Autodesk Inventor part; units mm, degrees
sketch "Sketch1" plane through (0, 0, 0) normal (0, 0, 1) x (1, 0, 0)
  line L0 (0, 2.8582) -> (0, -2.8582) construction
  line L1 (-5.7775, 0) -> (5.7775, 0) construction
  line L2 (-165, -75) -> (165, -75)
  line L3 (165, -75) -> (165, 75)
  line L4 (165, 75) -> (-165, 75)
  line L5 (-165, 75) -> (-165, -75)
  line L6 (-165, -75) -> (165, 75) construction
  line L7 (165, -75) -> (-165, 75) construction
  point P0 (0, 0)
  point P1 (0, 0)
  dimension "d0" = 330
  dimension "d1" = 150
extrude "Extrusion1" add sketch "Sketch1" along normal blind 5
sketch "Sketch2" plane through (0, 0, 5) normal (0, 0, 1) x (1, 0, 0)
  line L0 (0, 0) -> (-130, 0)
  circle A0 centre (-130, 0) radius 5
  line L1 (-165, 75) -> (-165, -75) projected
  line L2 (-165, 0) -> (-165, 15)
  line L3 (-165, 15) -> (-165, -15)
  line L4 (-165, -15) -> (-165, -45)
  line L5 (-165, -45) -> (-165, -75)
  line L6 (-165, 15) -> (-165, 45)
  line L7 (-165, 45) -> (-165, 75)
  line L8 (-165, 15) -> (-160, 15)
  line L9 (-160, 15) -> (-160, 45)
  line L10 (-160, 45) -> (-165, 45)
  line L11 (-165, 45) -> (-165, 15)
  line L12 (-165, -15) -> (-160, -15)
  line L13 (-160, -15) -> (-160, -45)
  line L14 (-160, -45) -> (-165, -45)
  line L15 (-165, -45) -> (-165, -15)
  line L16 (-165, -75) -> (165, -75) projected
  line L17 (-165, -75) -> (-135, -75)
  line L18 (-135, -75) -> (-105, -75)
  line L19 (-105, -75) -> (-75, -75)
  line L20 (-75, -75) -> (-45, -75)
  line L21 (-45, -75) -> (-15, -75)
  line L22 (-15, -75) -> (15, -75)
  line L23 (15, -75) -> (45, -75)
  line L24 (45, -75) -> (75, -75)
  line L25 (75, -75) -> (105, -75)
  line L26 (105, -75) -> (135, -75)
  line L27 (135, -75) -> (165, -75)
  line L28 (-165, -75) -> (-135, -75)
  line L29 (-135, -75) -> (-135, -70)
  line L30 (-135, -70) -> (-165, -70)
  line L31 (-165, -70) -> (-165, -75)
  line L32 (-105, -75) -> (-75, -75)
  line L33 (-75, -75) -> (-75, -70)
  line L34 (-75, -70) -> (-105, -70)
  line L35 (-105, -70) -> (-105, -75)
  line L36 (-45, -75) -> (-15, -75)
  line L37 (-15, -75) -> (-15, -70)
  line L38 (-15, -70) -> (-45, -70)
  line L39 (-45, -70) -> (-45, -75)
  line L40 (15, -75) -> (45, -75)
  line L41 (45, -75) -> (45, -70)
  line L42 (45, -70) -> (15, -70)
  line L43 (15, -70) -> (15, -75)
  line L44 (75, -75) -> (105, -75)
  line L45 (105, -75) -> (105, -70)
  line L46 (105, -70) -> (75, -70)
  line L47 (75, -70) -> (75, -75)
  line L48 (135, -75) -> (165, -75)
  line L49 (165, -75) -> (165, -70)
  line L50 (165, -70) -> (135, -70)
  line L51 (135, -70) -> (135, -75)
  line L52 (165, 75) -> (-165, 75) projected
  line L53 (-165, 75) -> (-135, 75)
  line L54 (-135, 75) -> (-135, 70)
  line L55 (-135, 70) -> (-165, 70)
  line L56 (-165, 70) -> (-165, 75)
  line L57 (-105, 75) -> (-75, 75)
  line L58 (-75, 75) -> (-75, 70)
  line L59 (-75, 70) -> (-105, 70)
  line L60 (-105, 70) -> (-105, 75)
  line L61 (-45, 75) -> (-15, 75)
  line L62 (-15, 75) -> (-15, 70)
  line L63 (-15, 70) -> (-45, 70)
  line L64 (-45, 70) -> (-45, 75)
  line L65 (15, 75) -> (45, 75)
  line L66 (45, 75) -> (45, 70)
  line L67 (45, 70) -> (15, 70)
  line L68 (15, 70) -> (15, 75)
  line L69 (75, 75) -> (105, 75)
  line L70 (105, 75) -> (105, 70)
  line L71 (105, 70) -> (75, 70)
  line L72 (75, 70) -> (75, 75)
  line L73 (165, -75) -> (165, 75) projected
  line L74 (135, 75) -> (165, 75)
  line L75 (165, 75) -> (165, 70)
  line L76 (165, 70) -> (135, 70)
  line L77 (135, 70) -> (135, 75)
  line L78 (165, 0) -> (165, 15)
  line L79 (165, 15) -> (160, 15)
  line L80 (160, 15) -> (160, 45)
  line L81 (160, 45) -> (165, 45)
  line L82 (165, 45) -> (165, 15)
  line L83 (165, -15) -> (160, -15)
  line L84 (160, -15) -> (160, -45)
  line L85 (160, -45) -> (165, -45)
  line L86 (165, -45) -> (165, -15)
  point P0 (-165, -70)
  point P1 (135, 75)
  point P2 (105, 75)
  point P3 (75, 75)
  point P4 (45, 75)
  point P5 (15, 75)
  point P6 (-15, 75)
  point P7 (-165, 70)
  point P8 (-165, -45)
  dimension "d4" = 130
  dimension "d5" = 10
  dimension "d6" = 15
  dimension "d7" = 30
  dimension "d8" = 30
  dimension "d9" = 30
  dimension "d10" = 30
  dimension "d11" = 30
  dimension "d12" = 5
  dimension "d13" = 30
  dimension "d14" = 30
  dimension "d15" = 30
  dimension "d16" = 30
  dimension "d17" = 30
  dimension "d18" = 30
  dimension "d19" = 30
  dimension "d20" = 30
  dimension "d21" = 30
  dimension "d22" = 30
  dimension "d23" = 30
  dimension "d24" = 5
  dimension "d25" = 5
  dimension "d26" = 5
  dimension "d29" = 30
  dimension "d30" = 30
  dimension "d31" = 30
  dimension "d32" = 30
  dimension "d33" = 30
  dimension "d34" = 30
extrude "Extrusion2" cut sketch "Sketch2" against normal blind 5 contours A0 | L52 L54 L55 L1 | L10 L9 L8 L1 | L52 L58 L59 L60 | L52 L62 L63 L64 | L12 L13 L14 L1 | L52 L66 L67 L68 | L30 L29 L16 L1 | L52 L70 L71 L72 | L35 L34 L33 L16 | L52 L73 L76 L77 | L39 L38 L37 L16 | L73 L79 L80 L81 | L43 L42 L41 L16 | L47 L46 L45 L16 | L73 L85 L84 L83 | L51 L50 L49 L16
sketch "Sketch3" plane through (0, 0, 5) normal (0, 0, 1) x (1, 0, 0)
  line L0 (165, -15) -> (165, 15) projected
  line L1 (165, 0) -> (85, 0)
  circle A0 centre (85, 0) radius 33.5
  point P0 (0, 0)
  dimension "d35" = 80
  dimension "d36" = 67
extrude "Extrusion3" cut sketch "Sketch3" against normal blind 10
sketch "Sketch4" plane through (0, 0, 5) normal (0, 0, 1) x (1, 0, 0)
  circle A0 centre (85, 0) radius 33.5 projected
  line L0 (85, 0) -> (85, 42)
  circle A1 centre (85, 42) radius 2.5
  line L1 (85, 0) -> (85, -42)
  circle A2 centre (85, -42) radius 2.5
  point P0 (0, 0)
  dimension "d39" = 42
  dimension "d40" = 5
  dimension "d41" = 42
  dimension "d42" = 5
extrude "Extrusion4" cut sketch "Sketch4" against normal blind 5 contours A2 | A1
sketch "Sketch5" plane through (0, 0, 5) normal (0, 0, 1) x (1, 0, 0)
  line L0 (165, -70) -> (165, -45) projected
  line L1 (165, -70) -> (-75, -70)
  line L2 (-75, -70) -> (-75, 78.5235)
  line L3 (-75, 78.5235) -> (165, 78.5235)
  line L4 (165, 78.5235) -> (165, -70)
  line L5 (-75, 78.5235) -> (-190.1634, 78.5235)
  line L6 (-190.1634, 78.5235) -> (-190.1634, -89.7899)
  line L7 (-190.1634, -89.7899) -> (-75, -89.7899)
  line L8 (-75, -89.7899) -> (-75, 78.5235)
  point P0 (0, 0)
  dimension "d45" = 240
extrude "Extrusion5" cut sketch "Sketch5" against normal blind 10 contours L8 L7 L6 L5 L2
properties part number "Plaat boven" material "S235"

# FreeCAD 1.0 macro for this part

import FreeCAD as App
import Part
import Sketcher

V = App.Vector
Q = App.Units.Quantity

doc = App.newDocument("Part")
body = doc.addObject("PartDesign::Body", "Body")

sketch1 = body.newObject("Sketcher::SketchObject", "Sketch")
sketch1.AttachmentSupport = (doc.getObject("XY_Plane"), [""])
sketch1.MapMode = "FlatFace"
sketch1.addGeometry([
    Part.LineSegment(V(-165, 75, 0), V(-165, -75, 0)),
    Part.LineSegment(V(-165, -75, 0), V(165, -75, 0)),
    Part.LineSegment(V(165, -75, 0), V(165, 75, 0)),
    Part.LineSegment(V(165, 75, 0), V(-165, 75, 0)),
], False)
sketch1.addConstraint([
    Sketcher.Constraint("Coincident", 0, 2, 1, 1),
    Sketcher.Constraint("Coincident", 1, 2, 2, 1),
    Sketcher.Constraint("Coincident", 2, 2, 3, 1),
    Sketcher.Constraint("Coincident", 3, 2, 0, 1),
    Sketcher.Constraint("Vertical", 0),
    Sketcher.Constraint("Horizontal", 1),
    Sketcher.Constraint("Vertical", 2),
    Sketcher.Constraint("Horizontal", 3),
    Sketcher.Constraint("Symmetric", 0, 2, 2, 2, -1, 1),
    Sketcher.Constraint("DistanceX", 1, 1, 1, 2, Q("330 mm")),
    Sketcher.Constraint("DistanceY", 0, 2, 0, 1, Q("150 mm")),
])
pad1 = body.newObject("PartDesign::Pad", "Pad")
pad1.Profile = sketch1
pad1.Length = 5

sketch2 = body.newObject("Sketcher::SketchObject", "Sketch001")
sketch2.AttachmentSupport = (doc.getObject("XY_Plane"), [""])
sketch2.MapMode = "FlatFace"
sketch2.AttachmentOffset = App.Placement(V(0, 0, 5), App.Rotation())
sketch2.addGeometry([
    Part.Circle(V(-130, 0, 0), V(0, 0, 1), 5),
    Part.LineSegment(V(-135, 75, 0), V(-165, 75, 0)),
    Part.LineSegment(V(-165, 75, 0), V(-165, 70, 0)),
    Part.LineSegment(V(-165, 70, 0), V(-135, 70, 0)),
    Part.LineSegment(V(-135, 70, 0), V(-135, 75, 0)),
    Part.LineSegment(V(-160, 45, 0), V(-165, 45, 0)),
    Part.LineSegment(V(-165, 45, 0), V(-165, 15, 0)),
    Part.LineSegment(V(-165, 15, 0), V(-160, 15, 0)),
    Part.LineSegment(V(-160, 15, 0), V(-160, 45, 0)),
    Part.LineSegment(V(-75, 75, 0), V(-105, 75, 0)),
    Part.LineSegment(V(-105, 75, 0), V(-105, 70, 0)),
    Part.LineSegment(V(-105, 70, 0), V(-75, 70, 0)),
    Part.LineSegment(V(-75, 70, 0), V(-75, 75, 0)),
    Part.LineSegment(V(-15, 75, 0), V(-45, 75, 0)),
    Part.LineSegment(V(-45, 75, 0), V(-45, 70, 0)),
    Part.LineSegment(V(-45, 70, 0), V(-15, 70, 0)),
    Part.LineSegment(V(-15, 70, 0), V(-15, 75, 0)),
    Part.LineSegment(V(-160, -15, 0), V(-165, -15, 0)),
    Part.LineSegment(V(-165, -15, 0), V(-165, -45, 0)),
    Part.LineSegment(V(-165, -45, 0), V(-160, -45, 0)),
    Part.LineSegment(V(-160, -45, 0), V(-160, -15, 0)),
    Part.LineSegment(V(45, 75, 0), V(15, 75, 0)),
    Part.LineSegment(V(15, 75, 0), V(15, 70, 0)),
    Part.LineSegment(V(15, 70, 0), V(45, 70, 0)),
    Part.LineSegment(V(45, 70, 0), V(45, 75, 0)),
    Part.LineSegment(V(-135, -70, 0), V(-165, -70, 0)),
    Part.LineSegment(V(-165, -70, 0), V(-165, -75, 0)),
    Part.LineSegment(V(-165, -75, 0), V(-135, -75, 0)),
    Part.LineSegment(V(-135, -75, 0), V(-135, -70, 0)),
    Part.LineSegment(V(105, 75, 0), V(75, 75, 0)),
    Part.LineSegment(V(75, 75, 0), V(75, 70, 0)),
    Part.LineSegment(V(75, 70, 0), V(105, 70, 0)),
    Part.LineSegment(V(105, 70, 0), V(105, 75, 0)),
    Part.LineSegment(V(-105, -70, 0), V(-105, -75, 0)),
    Part.LineSegment(V(-105, -75, 0), V(-75, -75, 0)),
    Part.LineSegment(V(-75, -75, 0), V(-75, -70, 0)),
    Part.LineSegment(V(-75, -70, 0), V(-105, -70, 0)),
    Part.LineSegment(V(165, 75, 0), V(135, 75, 0)),
    Part.LineSegment(V(135, 75, 0), V(135, 70, 0)),
    Part.LineSegment(V(135, 70, 0), V(165, 70, 0)),
    Part.LineSegment(V(165, 70, 0), V(165, 75, 0)),
    Part.LineSegment(V(-45, -70, 0), V(-45, -75, 0)),
    Part.LineSegment(V(-45, -75, 0), V(-15, -75, 0)),
    Part.LineSegment(V(-15, -75, 0), V(-15, -70, 0)),
    Part.LineSegment(V(-15, -70, 0), V(-45, -70, 0)),
    Part.LineSegment(V(165, 15, 0), V(165, 45, 0)),
    Part.LineSegment(V(165, 45, 0), V(160, 45, 0)),
    Part.LineSegment(V(160, 45, 0), V(160, 15, 0)),
    Part.LineSegment(V(160, 15, 0), V(165, 15, 0)),
    Part.LineSegment(V(15, -70, 0), V(15, -75, 0)),
    Part.LineSegment(V(15, -75, 0), V(45, -75, 0)),
    Part.LineSegment(V(45, -75, 0), V(45, -70, 0)),
    Part.LineSegment(V(45, -70, 0), V(15, -70, 0)),
    Part.LineSegment(V(75, -70, 0), V(75, -75, 0)),
    Part.LineSegment(V(75, -75, 0), V(105, -75, 0)),
    Part.LineSegment(V(105, -75, 0), V(105, -70, 0)),
    Part.LineSegment(V(105, -70, 0), V(75, -70, 0)),
    Part.LineSegment(V(165, -45, 0), V(165, -15, 0)),
    Part.LineSegment(V(165, -15, 0), V(160, -15, 0)),
    Part.LineSegment(V(160, -15, 0), V(160, -45, 0)),
    Part.LineSegment(V(160, -45, 0), V(165, -45, 0)),
    Part.LineSegment(V(135, -70, 0), V(135, -75, 0)),
    Part.LineSegment(V(135, -75, 0), V(165, -75, 0)),
    Part.LineSegment(V(165, -75, 0), V(165, -70, 0)),
    Part.LineSegment(V(165, -70, 0), V(135, -70, 0)),
], False)
sketch2.addConstraint([
    Sketcher.Constraint("Coincident", 1, 2, 2, 1),
    Sketcher.Constraint("Coincident", 2, 2, 3, 1),
    Sketcher.Constraint("Coincident", 3, 2, 4, 1),
    Sketcher.Constraint("Coincident", 4, 2, 1, 1),
    Sketcher.Constraint("Coincident", 5, 2, 6, 1),
    Sketcher.Constraint("Coincident", 6, 2, 7, 1),
    Sketcher.Constraint("Coincident", 7, 2, 8, 1),
    Sketcher.Constraint("Coincident", 8, 2, 5, 1),
    Sketcher.Constraint("Coincident", 9, 2, 10, 1),
    Sketcher.Constraint("Coincident", 10, 2, 11, 1),
    Sketcher.Constraint("Coincident", 11, 2, 12, 1),
    Sketcher.Constraint("Coincident", 12, 2, 9, 1),
    Sketcher.Constraint("Coincident", 13, 2, 14, 1),
    Sketcher.Constraint("Coincident", 14, 2, 15, 1),
    Sketcher.Constraint("Coincident", 15, 2, 16, 1),
    Sketcher.Constraint("Coincident", 16, 2, 13, 1),
    Sketcher.Constraint("Coincident", 17, 2, 18, 1),
    Sketcher.Constraint("Coincident", 18, 2, 19, 1),
    Sketcher.Constraint("Coincident", 19, 2, 20, 1),
    Sketcher.Constraint("Coincident", 20, 2, 17, 1),
    Sketcher.Constraint("Coincident", 21, 2, 22, 1),
    Sketcher.Constraint("Coincident", 22, 2, 23, 1),
    Sketcher.Constraint("Coincident", 23, 2, 24, 1),
    Sketcher.Constraint("Coincident", 24, 2, 21, 1),
    Sketcher.Constraint("Coincident", 25, 2, 26, 1),
    Sketcher.Constraint("Coincident", 26, 2, 27, 1),
    Sketcher.Constraint("Coincident", 27, 2, 28, 1),
    Sketcher.Constraint("Coincident", 28, 2, 25, 1),
    Sketcher.Constraint("Coincident", 29, 2, 30, 1),
    Sketcher.Constraint("Coincident", 30, 2, 31, 1),
    Sketcher.Constraint("Coincident", 31, 2, 32, 1),
    Sketcher.Constraint("Coincident", 32, 2, 29, 1),
    Sketcher.Constraint("Coincident", 33, 2, 34, 1),
    Sketcher.Constraint("Coincident", 34, 2, 35, 1),
    Sketcher.Constraint("Coincident", 35, 2, 36, 1),
    Sketcher.Constraint("Coincident", 36, 2, 33, 1),
    Sketcher.Constraint("Coincident", 37, 2, 38, 1),
    Sketcher.Constraint("Coincident", 38, 2, 39, 1),
    Sketcher.Constraint("Coincident", 39, 2, 40, 1),
    Sketcher.Constraint("Coincident", 40, 2, 37, 1),
    Sketcher.Constraint("Coincident", 41, 2, 42, 1),
    Sketcher.Constraint("Coincident", 42, 2, 43, 1),
    Sketcher.Constraint("Coincident", 43, 2, 44, 1),
    Sketcher.Constraint("Coincident", 44, 2, 41, 1),
    Sketcher.Constraint("Coincident", 45, 2, 46, 1),
    Sketcher.Constraint("Coincident", 46, 2, 47, 1),
    Sketcher.Constraint("Coincident", 47, 2, 48, 1),
    Sketcher.Constraint("Coincident", 48, 2, 45, 1),
    Sketcher.Constraint("Coincident", 49, 2, 50, 1),
    Sketcher.Constraint("Coincident", 50, 2, 51, 1),
    Sketcher.Constraint("Coincident", 51, 2, 52, 1),
    Sketcher.Constraint("Coincident", 52, 2, 49, 1),
    Sketcher.Constraint("Coincident", 53, 2, 54, 1),
    Sketcher.Constraint("Coincident", 54, 2, 55, 1),
    Sketcher.Constraint("Coincident", 55, 2, 56, 1),
    Sketcher.Constraint("Coincident", 56, 2, 53, 1),
    Sketcher.Constraint("Coincident", 57, 2, 58, 1),
    Sketcher.Constraint("Coincident", 58, 2, 59, 1),
    Sketcher.Constraint("Coincident", 59, 2, 60, 1),
    Sketcher.Constraint("Coincident", 60, 2, 57, 1),
    Sketcher.Constraint("Coincident", 61, 2, 62, 1),
    Sketcher.Constraint("Coincident", 62, 2, 63, 1),
    Sketcher.Constraint("Coincident", 63, 2, 64, 1),
    Sketcher.Constraint("Coincident", 64, 2, 61, 1),
    Sketcher.Constraint("Horizontal", 1),
    Sketcher.Constraint("Vertical", 2),
    Sketcher.Constraint("Horizontal", 3),
    Sketcher.Constraint("Vertical", 4),
    Sketcher.Constraint("Horizontal", 5),
    Sketcher.Constraint("Vertical", 6),
    Sketcher.Constraint("Horizontal", 7),
    Sketcher.Constraint("Vertical", 8),
    Sketcher.Constraint("Horizontal", 9),
    Sketcher.Constraint("Vertical", 10),
    Sketcher.Constraint("Horizontal", 11),
    Sketcher.Constraint("Vertical", 12),
    Sketcher.Constraint("Horizontal", 13),
    Sketcher.Constraint("Vertical", 14),
    Sketcher.Constraint("Horizontal", 15),
    Sketcher.Constraint("Vertical", 16),
    Sketcher.Constraint("Horizontal", 17),
    Sketcher.Constraint("Vertical", 18),
    Sketcher.Constraint("Horizontal", 19),
    Sketcher.Constraint("Vertical", 20),
    Sketcher.Constraint("Horizontal", 21),
    Sketcher.Constraint("Vertical", 22),
    Sketcher.Constraint("Horizontal", 23),
    Sketcher.Constraint("Vertical", 24),
    Sketcher.Constraint("Horizontal", 25),
    Sketcher.Constraint("Vertical", 26),
    Sketcher.Constraint("Horizontal", 27),
    Sketcher.Constraint("Vertical", 28),
    Sketcher.Constraint("Horizontal", 29),
    Sketcher.Constraint("Vertical", 30),
    Sketcher.Constraint("Horizontal", 31),
    Sketcher.Constraint("Vertical", 32),
    Sketcher.Constraint("Vertical", 33),
    Sketcher.Constraint("Horizontal", 34),
    Sketcher.Constraint("Vertical", 35),
    Sketcher.Constraint("Horizontal", 36),
    Sketcher.Constraint("Horizontal", 37),
    Sketcher.Constraint("Vertical", 38),
    Sketcher.Constraint("Horizontal", 39),
    Sketcher.Constraint("Vertical", 40),
    Sketcher.Constraint("Vertical", 41),
    Sketcher.Constraint("Horizontal", 42),
    Sketcher.Constraint("Vertical", 43),
    Sketcher.Constraint("Horizontal", 44),
    Sketcher.Constraint("Vertical", 45),
    Sketcher.Constraint("Horizontal", 46),
    Sketcher.Constraint("Vertical", 47),
    Sketcher.Constraint("Horizontal", 48),
    Sketcher.Constraint("Vertical", 49),
    Sketcher.Constraint("Horizontal", 50),
    Sketcher.Constraint("Vertical", 51),
    Sketcher.Constraint("Horizontal", 52),
    Sketcher.Constraint("Vertical", 53),
    Sketcher.Constraint("Horizontal", 54),
    Sketcher.Constraint("Vertical", 55),
    Sketcher.Constraint("Horizontal", 56),
    Sketcher.Constraint("Vertical", 57),
    Sketcher.Constraint("Horizontal", 58),
    Sketcher.Constraint("Vertical", 59),
    Sketcher.Constraint("Horizontal", 60),
    Sketcher.Constraint("Vertical", 61),
    Sketcher.Constraint("Horizontal", 62),
    Sketcher.Constraint("Vertical", 63),
    Sketcher.Constraint("Horizontal", 64),
    Sketcher.Constraint("Symmetric", 32, 2, 33, 2, -1, 1),
    Sketcher.Constraint("Symmetric", 30, 2, 35, 2, -1, 1),
    Sketcher.Constraint("Symmetric", 27, 2, 37, 2, -1, 1),
    Sketcher.Constraint("Symmetric", 25, 2, 39, 2, -1, 1),
    Sketcher.Constraint("Symmetric", 24, 2, 41, 2, -1, 1),
    Sketcher.Constraint("Symmetric", 22, 2, 43, 2, -1, 1),
    Sketcher.Constraint("Symmetric", 18, 2, 45, 2, -1, 1),
    Sketcher.Constraint("Symmetric", 20, 2, 47, 2, -1, 1),
    Sketcher.Constraint("Symmetric", 16, 2, 49, 2, -1, 1),
    Sketcher.Constraint("Symmetric", 14, 2, 51, 2, -1, 1),
    Sketcher.Constraint("Symmetric", 12, 2, 53, 2, -1, 1),
    Sketcher.Constraint("Symmetric", 10, 2, 55, 2, -1, 1),
    Sketcher.Constraint("Symmetric", 6, 2, 57, 2, -1, 1),
    Sketcher.Constraint("Symmetric", 8, 2, 59, 2, -1, 1),
    Sketcher.Constraint("Symmetric", 4, 2, 61, 2, -1, 1),
    Sketcher.Constraint("Symmetric", 2, 2, 63, 2, -1, 1),
    Sketcher.Constraint("Symmetric", 16, 2, 21, 2, -2),
    Sketcher.Constraint("Symmetric", 14, 2, 23, 2, -2),
    Sketcher.Constraint("Symmetric", 12, 2, 29, 2, -2),
    Sketcher.Constraint("Symmetric", 10, 2, 31, 2, -2),
    Sketcher.Constraint("Symmetric", 4, 2, 37, 2, -2),
    Sketcher.Constraint("Symmetric", 2, 2, 39, 2, -2),
    Sketcher.Constraint("Symmetric", 5, 2, 45, 2, -2),
    Sketcher.Constraint("Symmetric", 7, 2, 47, 2, -2),
    Sketcher.Constraint("PointOnObject", 0, 3, -1),
    Sketcher.Constraint("Horizontal", 4, 2, 9, 2),
    Sketcher.Constraint("Horizontal", 3, 2, 10, 2),
    Sketcher.Constraint("Horizontal", 12, 2, 13, 2),
    Sketcher.Constraint("Horizontal", 11, 2, 14, 2),
    Sketcher.Constraint("Vertical", 2, 2, 5, 2),
    Sketcher.Constraint("Equal", 3, 9),
    Sketcher.Constraint("Equal", 11, 13),
    Sketcher.Constraint("Equal", 60, 2),
    Sketcher.Constraint("Equal", 64, 6),
    Sketcher.Constraint("Diameter", 0, Q("10 mm")),
    Sketcher.Constraint("DistanceX", 1, 2, 1, 1, Q("30 mm")),
    Sketcher.Constraint("DistanceX", 5, 2, 5, 1, Q("5 mm")),
    Sketcher.Constraint("DistanceX", 0, 3, -1, 1, Q("130 mm")),
    Sketcher.Constraint("DistanceY", -1, 1, 6, 2, Q("15 mm")),
    Sketcher.Constraint("DistanceX", 15, 2, -1, 1, Q("15 mm")),
    Sketcher.Constraint("DistanceX", 1, 2, -1, 1, Q("165 mm")),
    Sketcher.Constraint("DistanceY", -1, 1, 1, 2, Q("75 mm")),
    Sketcher.Constraint("DistanceX", 9, 2, -1, 1, Q("105 mm")),
])
pocket1 = body.newObject("PartDesign::Pocket", "Pocket")
pocket1.Profile = sketch2
pocket1.Length = 5

sketch3 = body.newObject("Sketcher::SketchObject", "Sketch002")
sketch3.AttachmentSupport = (doc.getObject("XY_Plane"), [""])
sketch3.MapMode = "FlatFace"
sketch3.AttachmentOffset = App.Placement(V(0, 0, 5), App.Rotation())
sketch3.addGeometry(Part.Circle(V(85, 0, 0), V(0, 0, 1), 34), False)
sketch3.addConstraint([
    Sketcher.Constraint("PointOnObject", 0, 3, -1),
    Sketcher.Constraint("Diameter", 0, Q("67 mm")),
    Sketcher.Constraint("DistanceX", -1, 1, 0, 3, Q("85 mm")),
])
pocket2 = body.newObject("PartDesign::Pocket", "Pocket001")
pocket2.Profile = sketch3
pocket2.Length = 10

sketch4 = body.newObject("Sketcher::SketchObject", "Sketch003")
sketch4.AttachmentSupport = (doc.getObject("XY_Plane"), [""])
sketch4.MapMode = "FlatFace"
sketch4.AttachmentOffset = App.Placement(V(0, 0, 5), App.Rotation())
sketch4.addGeometry([
    Part.Circle(V(85, -42, 0), V(0, 0, 1), 2.5),
    Part.Circle(V(85, 42, 0), V(0, 0, 1), 2.5),
], False)
sketch4.addConstraint([
    Sketcher.Constraint("Equal", 0, 1),
    Sketcher.Constraint("Symmetric", 0, 3, 1, 3, -1),
    Sketcher.Constraint("Diameter", 0, Q("5 mm")),
    Sketcher.Constraint("DistanceY", 0, 3, -1, 1, Q("42 mm")),
    Sketcher.Constraint("DistanceX", -1, 1, 0, 3, Q("85 mm")),
])
pocket3 = body.newObject("PartDesign::Pocket", "Pocket002")
pocket3.Profile = sketch4
pocket3.Length = 5

sketch5 = body.newObject("Sketcher::SketchObject", "Sketch004")
sketch5.AttachmentSupport = (doc.getObject("XY_Plane"), [""])
sketch5.MapMode = "FlatFace"
sketch5.AttachmentOffset = App.Placement(V(0, 0, 5), App.Rotation())
sketch5.addGeometry([
    Part.LineSegment(V(-75, -90, 0), V(-75, 79, 0)),
    Part.LineSegment(V(-75, 79, 0), V(-190, 79, 0)),
    Part.LineSegment(V(-190, 79, 0), V(-190, -90, 0)),
    Part.LineSegment(V(-190, -90, 0), V(-75, -90, 0)),
], False)
sketch5.addConstraint([
    Sketcher.Constraint("Coincident", 0, 2, 1, 1),
    Sketcher.Constraint("Coincident", 1, 2, 2, 1),
    Sketcher.Constraint("Coincident", 2, 2, 3, 1),
    Sketcher.Constraint("Coincident", 3, 2, 0, 1),
    Sketcher.Constraint("Vertical", 0),
    Sketcher.Constraint("Horizontal", 1),
    Sketcher.Constraint("Vertical", 2),
    Sketcher.Constraint("Horizontal", 3),
    Sketcher.Constraint("DistanceX", 0, 2, -1, 1, Q("75 mm")),
    Sketcher.Constraint("DistanceY", 2, 2, -1, 1, Q("89.79 mm")),
    Sketcher.Constraint("DistanceX", 1, 2, 1, 1, Q("115.1634 mm")),
    Sketcher.Constraint("DistanceY", 0, 1, 0, 2, Q("168.3134 mm")),
])
pocket4 = body.newObject("PartDesign::Pocket", "Pocket003")
pocket4.Profile = sketch5
pocket4.Length = 10

doc.recompute()
